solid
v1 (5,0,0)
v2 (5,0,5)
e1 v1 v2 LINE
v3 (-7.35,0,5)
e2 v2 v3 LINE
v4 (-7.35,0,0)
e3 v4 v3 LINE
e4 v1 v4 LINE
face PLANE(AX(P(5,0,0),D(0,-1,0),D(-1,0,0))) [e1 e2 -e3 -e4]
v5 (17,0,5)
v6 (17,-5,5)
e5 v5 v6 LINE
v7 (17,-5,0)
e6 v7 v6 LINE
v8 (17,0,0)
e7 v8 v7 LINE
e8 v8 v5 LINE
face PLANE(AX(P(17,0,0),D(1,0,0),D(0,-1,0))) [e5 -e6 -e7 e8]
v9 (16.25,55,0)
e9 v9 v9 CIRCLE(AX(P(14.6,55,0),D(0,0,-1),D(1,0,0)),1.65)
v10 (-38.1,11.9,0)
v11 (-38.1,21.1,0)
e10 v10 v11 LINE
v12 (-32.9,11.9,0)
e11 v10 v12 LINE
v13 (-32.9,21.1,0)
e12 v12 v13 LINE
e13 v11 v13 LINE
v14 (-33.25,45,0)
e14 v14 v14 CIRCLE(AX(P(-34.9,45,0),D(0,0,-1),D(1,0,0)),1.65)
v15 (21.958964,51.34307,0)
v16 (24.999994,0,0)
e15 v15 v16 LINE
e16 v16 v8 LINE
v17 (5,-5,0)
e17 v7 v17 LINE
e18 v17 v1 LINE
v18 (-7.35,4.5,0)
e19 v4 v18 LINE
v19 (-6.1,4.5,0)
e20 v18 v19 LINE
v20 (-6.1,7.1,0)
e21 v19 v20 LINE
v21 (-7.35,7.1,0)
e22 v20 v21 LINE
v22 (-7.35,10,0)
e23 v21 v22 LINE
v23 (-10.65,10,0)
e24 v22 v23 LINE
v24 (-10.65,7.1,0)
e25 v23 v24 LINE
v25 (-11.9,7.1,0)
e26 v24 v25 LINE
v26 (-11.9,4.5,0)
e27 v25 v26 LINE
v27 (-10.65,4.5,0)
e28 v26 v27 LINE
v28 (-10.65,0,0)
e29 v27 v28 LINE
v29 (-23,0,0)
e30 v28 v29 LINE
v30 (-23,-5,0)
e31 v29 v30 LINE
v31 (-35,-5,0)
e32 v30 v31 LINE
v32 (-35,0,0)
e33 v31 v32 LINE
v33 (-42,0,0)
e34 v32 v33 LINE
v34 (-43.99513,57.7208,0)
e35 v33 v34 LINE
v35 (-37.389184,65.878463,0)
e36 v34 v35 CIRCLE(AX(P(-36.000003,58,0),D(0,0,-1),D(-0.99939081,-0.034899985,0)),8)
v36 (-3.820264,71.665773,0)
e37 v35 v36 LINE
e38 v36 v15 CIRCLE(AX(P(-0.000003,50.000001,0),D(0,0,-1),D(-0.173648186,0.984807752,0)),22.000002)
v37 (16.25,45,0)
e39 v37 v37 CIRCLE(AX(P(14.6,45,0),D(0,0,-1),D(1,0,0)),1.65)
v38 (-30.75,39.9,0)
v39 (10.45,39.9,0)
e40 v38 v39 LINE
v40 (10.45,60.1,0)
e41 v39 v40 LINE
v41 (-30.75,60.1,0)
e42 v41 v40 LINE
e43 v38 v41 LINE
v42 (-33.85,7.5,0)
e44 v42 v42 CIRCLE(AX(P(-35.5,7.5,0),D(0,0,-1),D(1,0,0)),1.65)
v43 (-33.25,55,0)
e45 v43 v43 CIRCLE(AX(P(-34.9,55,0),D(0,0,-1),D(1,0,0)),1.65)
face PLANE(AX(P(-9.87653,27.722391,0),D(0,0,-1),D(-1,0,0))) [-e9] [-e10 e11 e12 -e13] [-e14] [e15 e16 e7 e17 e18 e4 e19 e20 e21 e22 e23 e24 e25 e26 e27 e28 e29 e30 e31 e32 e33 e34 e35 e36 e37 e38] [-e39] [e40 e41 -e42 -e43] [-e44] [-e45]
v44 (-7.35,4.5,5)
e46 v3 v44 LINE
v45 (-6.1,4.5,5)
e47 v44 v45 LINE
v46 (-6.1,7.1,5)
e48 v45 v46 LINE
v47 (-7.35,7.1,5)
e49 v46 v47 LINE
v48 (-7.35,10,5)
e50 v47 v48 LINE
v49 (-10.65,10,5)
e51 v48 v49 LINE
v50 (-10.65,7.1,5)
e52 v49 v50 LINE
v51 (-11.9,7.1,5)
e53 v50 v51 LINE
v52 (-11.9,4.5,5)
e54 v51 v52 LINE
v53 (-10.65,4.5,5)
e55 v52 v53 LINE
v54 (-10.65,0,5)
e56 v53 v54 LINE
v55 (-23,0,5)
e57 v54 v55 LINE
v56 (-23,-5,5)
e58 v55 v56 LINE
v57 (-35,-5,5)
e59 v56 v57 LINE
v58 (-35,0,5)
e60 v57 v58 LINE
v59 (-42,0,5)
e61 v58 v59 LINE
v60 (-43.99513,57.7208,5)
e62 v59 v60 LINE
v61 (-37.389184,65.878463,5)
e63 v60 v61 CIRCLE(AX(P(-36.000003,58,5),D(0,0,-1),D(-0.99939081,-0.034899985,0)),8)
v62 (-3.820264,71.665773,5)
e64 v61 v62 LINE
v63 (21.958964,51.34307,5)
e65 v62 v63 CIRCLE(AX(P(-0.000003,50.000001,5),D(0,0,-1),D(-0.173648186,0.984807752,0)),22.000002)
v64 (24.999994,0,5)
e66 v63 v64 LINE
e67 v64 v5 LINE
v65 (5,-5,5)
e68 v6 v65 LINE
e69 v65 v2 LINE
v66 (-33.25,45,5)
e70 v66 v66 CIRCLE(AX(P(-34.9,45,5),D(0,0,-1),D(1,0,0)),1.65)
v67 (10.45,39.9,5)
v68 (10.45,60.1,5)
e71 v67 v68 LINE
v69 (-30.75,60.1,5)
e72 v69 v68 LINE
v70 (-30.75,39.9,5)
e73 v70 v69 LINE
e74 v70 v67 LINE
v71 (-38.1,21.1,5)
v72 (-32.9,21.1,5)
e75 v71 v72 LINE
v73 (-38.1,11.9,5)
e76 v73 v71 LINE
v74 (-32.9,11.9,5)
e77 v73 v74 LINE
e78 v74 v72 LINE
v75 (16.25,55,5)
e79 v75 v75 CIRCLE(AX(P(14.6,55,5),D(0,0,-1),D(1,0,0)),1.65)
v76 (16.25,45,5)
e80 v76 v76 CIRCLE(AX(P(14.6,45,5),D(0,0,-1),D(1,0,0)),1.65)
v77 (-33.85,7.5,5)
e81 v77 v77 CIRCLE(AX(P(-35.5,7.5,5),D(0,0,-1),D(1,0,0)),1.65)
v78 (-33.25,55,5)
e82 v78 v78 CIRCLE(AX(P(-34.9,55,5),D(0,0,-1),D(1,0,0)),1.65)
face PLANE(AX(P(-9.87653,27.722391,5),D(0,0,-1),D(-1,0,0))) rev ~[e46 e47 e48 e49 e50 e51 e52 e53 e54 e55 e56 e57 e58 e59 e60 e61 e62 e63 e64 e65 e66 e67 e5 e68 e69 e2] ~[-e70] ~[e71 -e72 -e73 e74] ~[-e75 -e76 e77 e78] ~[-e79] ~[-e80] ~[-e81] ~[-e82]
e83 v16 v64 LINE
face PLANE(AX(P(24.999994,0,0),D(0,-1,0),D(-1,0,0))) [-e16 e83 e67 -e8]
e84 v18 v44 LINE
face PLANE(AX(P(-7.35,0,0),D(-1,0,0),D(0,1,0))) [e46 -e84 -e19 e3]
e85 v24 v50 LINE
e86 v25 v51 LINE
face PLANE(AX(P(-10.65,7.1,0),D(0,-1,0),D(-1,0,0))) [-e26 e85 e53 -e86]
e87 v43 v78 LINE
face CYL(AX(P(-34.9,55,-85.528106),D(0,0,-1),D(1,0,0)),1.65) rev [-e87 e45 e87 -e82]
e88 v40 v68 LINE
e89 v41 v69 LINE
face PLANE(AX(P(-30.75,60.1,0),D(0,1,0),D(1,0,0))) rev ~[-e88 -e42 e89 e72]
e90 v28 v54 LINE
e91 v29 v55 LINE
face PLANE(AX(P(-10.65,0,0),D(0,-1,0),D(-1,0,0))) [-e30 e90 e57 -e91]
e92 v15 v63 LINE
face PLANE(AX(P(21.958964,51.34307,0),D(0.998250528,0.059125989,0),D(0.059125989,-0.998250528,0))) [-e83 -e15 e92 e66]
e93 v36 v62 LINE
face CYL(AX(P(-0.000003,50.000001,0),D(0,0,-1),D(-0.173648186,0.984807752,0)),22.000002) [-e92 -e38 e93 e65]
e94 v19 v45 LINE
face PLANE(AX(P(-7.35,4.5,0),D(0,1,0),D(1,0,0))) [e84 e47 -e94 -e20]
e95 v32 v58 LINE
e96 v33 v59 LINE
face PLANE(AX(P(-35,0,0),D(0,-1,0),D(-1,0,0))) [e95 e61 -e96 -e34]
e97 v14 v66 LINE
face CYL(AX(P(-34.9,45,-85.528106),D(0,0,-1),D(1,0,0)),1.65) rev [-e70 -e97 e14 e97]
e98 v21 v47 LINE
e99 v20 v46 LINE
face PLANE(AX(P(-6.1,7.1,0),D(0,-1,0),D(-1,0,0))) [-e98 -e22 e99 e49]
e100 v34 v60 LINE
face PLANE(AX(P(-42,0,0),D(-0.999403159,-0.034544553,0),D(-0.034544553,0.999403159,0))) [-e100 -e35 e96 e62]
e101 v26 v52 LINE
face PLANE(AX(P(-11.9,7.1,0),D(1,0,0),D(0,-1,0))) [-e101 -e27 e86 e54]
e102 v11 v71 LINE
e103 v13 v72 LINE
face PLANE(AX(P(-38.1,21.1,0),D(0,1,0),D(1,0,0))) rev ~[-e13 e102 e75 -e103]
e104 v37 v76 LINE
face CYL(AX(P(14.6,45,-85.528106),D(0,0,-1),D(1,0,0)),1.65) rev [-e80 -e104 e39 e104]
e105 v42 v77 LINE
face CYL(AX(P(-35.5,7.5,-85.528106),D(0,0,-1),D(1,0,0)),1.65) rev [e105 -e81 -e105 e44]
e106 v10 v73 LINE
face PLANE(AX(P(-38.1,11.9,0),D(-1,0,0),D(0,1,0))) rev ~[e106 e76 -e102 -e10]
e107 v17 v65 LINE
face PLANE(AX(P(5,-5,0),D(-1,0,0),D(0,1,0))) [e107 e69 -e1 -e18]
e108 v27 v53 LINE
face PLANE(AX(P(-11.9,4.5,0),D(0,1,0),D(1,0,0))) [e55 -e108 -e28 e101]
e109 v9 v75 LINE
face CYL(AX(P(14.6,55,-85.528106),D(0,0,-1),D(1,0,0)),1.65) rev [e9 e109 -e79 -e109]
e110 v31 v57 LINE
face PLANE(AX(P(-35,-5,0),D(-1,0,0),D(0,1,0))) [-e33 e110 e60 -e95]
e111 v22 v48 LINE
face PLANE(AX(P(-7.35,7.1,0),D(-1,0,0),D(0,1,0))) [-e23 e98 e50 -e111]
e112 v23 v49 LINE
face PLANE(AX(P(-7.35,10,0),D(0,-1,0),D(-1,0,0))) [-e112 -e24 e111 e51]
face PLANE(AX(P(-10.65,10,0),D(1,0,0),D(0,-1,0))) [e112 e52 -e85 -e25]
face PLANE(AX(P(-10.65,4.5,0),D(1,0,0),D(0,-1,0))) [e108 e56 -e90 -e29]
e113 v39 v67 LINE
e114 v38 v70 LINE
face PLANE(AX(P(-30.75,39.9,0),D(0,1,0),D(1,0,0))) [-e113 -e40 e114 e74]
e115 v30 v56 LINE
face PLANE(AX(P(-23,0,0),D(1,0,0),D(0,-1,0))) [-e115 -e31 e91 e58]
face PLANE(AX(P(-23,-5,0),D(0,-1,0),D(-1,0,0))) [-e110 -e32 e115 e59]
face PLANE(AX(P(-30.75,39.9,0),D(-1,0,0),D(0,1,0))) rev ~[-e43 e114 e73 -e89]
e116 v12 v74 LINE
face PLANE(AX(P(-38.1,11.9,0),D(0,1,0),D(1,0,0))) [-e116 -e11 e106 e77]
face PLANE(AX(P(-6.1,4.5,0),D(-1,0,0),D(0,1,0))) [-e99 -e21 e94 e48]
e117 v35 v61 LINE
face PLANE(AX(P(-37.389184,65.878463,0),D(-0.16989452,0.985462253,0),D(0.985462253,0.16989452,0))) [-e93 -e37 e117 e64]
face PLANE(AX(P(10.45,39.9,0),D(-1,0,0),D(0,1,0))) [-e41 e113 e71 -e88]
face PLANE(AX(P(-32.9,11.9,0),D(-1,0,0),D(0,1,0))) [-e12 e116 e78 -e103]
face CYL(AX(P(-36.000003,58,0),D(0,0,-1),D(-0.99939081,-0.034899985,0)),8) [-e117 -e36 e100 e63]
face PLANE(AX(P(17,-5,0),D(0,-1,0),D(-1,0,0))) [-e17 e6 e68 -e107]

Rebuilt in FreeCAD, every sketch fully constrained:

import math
import FreeCAD as App
import Part
import Sketcher

V = App.Vector

doc = App.newDocument("Part")
params = doc.addObject("Spreadsheet::Sheet", "Params")
for row, (alias, value) in enumerate([
    ("sketch1_radius", "8 mm"),
    ("sketch1_width", "7 mm"),
    ("sketch1_width2", "12 mm"),
    ("sketch1_height", "5 mm"),
    ("sketch1_width3", "3.3 mm"),
    ("pad1_length", "5 mm"),
    ("sketch2_diameter", "3.3 mm"),
], start=1):
    params.set(f"A{row}", alias)
    params.set(f"B{row}", "=" + value)
    params.setAlias(f"B{row}", alias)

body = doc.addObject("PartDesign::Body", "Body")

# Sketch on XY plane
sketch1 = body.newObject("Sketcher::SketchObject", "Sketch")
sketch1.AttachmentSupport = (doc.getObject("XY_Plane"), [""])
sketch1.MapMode = "FlatFace"
sketch1.addGeometry([
    Part.LineSegment(V(25, 0, 0), V(22, 51.3, 0)),  # 0
    Part.ArcOfCircle(Part.Circle(V(0, 50, 0), V(0, 0, 1), 22), math.radians(4), math.radians(100)),  # 1
    Part.LineSegment(V(-3.8, 71.7, 0), V(-37.4, 65.9, 0)),  # 2
    Part.ArcOfCircle(Part.Circle(V(-36, 58, 0), V(0, 0, 1), 8), math.radians(100), math.radians(182)),  # 3
    Part.LineSegment(V(-44, 57.7, 0), V(-42, 0, 0)),  # 4
    Part.LineSegment(V(-42, 0, 0), V(-35, 0, 0)),  # 5
    Part.LineSegment(V(-35, 0, 0), V(-35, -5, 0)),  # 6
    Part.LineSegment(V(-35, -5, 0), V(-23, -5, 0)),  # 7
    Part.LineSegment(V(-23, -5, 0), V(-23, 0, 0)),  # 8
    Part.LineSegment(V(-23, 0, 0), V(-10.7, 0, 0)),  # 9
    Part.LineSegment(V(-10.7, 0, 0), V(-10.7, 4.5, 0)),  # 10
    Part.LineSegment(V(-10.7, 4.5, 0), V(-11.9, 4.5, 0)),  # 11
    Part.LineSegment(V(-11.9, 4.5, 0), V(-11.9, 7.1, 0)),  # 12
    Part.LineSegment(V(-11.9, 7.1, 0), V(-10.7, 7.1, 0)),  # 13
    Part.LineSegment(V(-10.7, 7.1, 0), V(-10.7, 10, 0)),  # 14
    Part.LineSegment(V(-10.7, 10, 0), V(-7.3, 10, 0)),  # 15
    Part.LineSegment(V(-7.3, 10, 0), V(-7.3, 7.1, 0)),  # 16
    Part.LineSegment(V(-7.3, 7.1, 0), V(-6.1, 7.1, 0)),  # 17
    Part.LineSegment(V(-6.1, 7.1, 0), V(-6.1, 4.5, 0)),  # 18
    Part.LineSegment(V(-6.1, 4.5, 0), V(-7.3, 4.5, 0)),  # 19
    Part.LineSegment(V(-7.3, 4.5, 0), V(-7.3, 0, 0)),  # 20
    Part.LineSegment(V(-7.3, 0, 0), V(5, 0, 0)),  # 21
    Part.LineSegment(V(5, 0, 0), V(5, -5, 0)),  # 22
    Part.LineSegment(V(5, -5, 0), V(17, -5, 0)),  # 23
    Part.LineSegment(V(17, -5, 0), V(17, 0, 0)),  # 24
    Part.LineSegment(V(17, 0, 0), V(25, 0, 0)),  # 25
    Part.LineSegment(V(-38.1, 11.9, 0), V(-38.1, 21.1, 0)),  # 26
    Part.LineSegment(V(-38.1, 21.1, 0), V(-32.9, 21.1, 0)),  # 27
    Part.LineSegment(V(-32.9, 21.1, 0), V(-32.9, 11.9, 0)),  # 28
    Part.LineSegment(V(-32.9, 11.9, 0), V(-38.1, 11.9, 0)),  # 29
    Part.LineSegment(V(-30.8, 39.9, 0), V(-30.8, 60.1, 0)),  # 30
    Part.LineSegment(V(-30.8, 60.1, 0), V(10.4, 60.1, 0)),  # 31
    Part.LineSegment(V(10.4, 60.1, 0), V(10.4, 39.9, 0)),  # 32
    Part.LineSegment(V(10.4, 39.9, 0), V(-30.8, 39.9, 0)),  # 33
], False)
sketch1.addConstraint([
    Sketcher.Constraint("Coincident", 0, 2, 1, 1),
    Sketcher.Constraint("Coincident", 1, 2, 2, 1),
    Sketcher.Constraint("Coincident", 2, 2, 3, 1),
    Sketcher.Constraint("Coincident", 3, 2, 4, 1),
    Sketcher.Constraint("Coincident", 4, 2, 5, 1),
    Sketcher.Constraint("Coincident", 5, 2, 6, 1),
    Sketcher.Constraint("Coincident", 6, 2, 7, 1),
    Sketcher.Constraint("Coincident", 7, 2, 8, 1),
    Sketcher.Constraint("Coincident", 8, 2, 9, 1),
    Sketcher.Constraint("Coincident", 9, 2, 10, 1),
    Sketcher.Constraint("Coincident", 10, 2, 11, 1),
    Sketcher.Constraint("Coincident", 11, 2, 12, 1),
    Sketcher.Constraint("Coincident", 12, 2, 13, 1),
    Sketcher.Constraint("Coincident", 13, 2, 14, 1),
    Sketcher.Constraint("Coincident", 14, 2, 15, 1),
    Sketcher.Constraint("Coincident", 15, 2, 16, 1),
    Sketcher.Constraint("Coincident", 16, 2, 17, 1),
    Sketcher.Constraint("Coincident", 17, 2, 18, 1),
    Sketcher.Constraint("Coincident", 18, 2, 19, 1),
    Sketcher.Constraint("Coincident", 19, 2, 20, 1),
    Sketcher.Constraint("Coincident", 20, 2, 21, 1),
    Sketcher.Constraint("Coincident", 21, 2, 22, 1),
    Sketcher.Constraint("Coincident", 22, 2, 23, 1),
    Sketcher.Constraint("Coincident", 23, 2, 24, 1),
    Sketcher.Constraint("Coincident", 24, 2, 25, 1),
    Sketcher.Constraint("Coincident", 25, 2, 0, 1),
    Sketcher.Constraint("Coincident", 26, 2, 27, 1),
    Sketcher.Constraint("Coincident", 27, 2, 28, 1),
    Sketcher.Constraint("Coincident", 28, 2, 29, 1),
    Sketcher.Constraint("Coincident", 29, 2, 26, 1),
    Sketcher.Constraint("Coincident", 30, 2, 31, 1),
    Sketcher.Constraint("Coincident", 31, 2, 32, 1),
    Sketcher.Constraint("Coincident", 32, 2, 33, 1),
    Sketcher.Constraint("Coincident", 33, 2, 30, 1),
    Sketcher.Constraint("Horizontal", 5),
    Sketcher.Constraint("Vertical", 6),
    Sketcher.Constraint("Horizontal", 7),
    Sketcher.Constraint("Vertical", 8),
    Sketcher.Constraint("Horizontal", 9),
    Sketcher.Constraint("Vertical", 10),
    Sketcher.Constraint("Horizontal", 11),
    Sketcher.Constraint("Vertical", 12),
    Sketcher.Constraint("Horizontal", 13),
    Sketcher.Constraint("Vertical", 14),
    Sketcher.Constraint("Horizontal", 15),
    Sketcher.Constraint("Vertical", 16),
    Sketcher.Constraint("Horizontal", 17),
    Sketcher.Constraint("Vertical", 18),
    Sketcher.Constraint("Horizontal", 19),
    Sketcher.Constraint("Vertical", 20),
    Sketcher.Constraint("Horizontal", 21),
    Sketcher.Constraint("Vertical", 22),
    Sketcher.Constraint("Horizontal", 23),
    Sketcher.Constraint("Vertical", 24),
    Sketcher.Constraint("Horizontal", 25),
    Sketcher.Constraint("Vertical", 26),
    Sketcher.Constraint("Horizontal", 27),
    Sketcher.Constraint("Vertical", 28),
    Sketcher.Constraint("Horizontal", 29),
    Sketcher.Constraint("Vertical", 30),
    Sketcher.Constraint("Horizontal", 31),
    Sketcher.Constraint("Vertical", 32),
    Sketcher.Constraint("Horizontal", 33),
    Sketcher.Constraint("PointOnObject", 4, 2, -1),
    Sketcher.Constraint("PointOnObject", 8, 2, -1),
    Sketcher.Constraint("PointOnObject", 20, 2, -1),
    Sketcher.Constraint("PointOnObject", 24, 2, -1),
    Sketcher.Constraint("Horizontal", 13, 2, 16, 2),
    Sketcher.Constraint("Horizontal", 11, 2, 18, 2),
    Sketcher.Constraint("Horizontal", 7, 2, 22, 2),
    Sketcher.Constraint("Vertical", 10, 2, 13, 2),
    Sketcher.Constraint("Vertical", 16, 2, 19, 2),
    Sketcher.Constraint("Equal", 13, 17),
    Sketcher.Constraint("Equal", 9, 21),
    Sketcher.Constraint("Equal", 7, 23),
    Sketcher.Constraint("Radius", 3, 8.0),
    Sketcher.Constraint("DistanceX", 5, 1, 5, 2, 7.0),
    Sketcher.Constraint("DistanceX", 7, 1, 7, 2, 12.0),
    Sketcher.Constraint("DistanceY", 6, 2, 6, 1, 5.0),
    Sketcher.Constraint("DistanceX", 15, 1, 15, 2, 3.3),
    Sketcher.Constraint("DistanceX", 27, 1, 27, 2, 5.2),
    Sketcher.Constraint("DistanceX", 31, 1, 31, 2, 41.2),
    Sketcher.Constraint("DistanceY", 10, 1, 10, 2, 4.5),
    Sketcher.Constraint("DistanceY", 12, 1, 12, 2, 2.6),
    Sketcher.Constraint("DistanceY", 14, 1, 14, 2, 2.9),
    Sketcher.Constraint("DistanceY", 26, 1, 26, 2, 9.2),
    Sketcher.Constraint("DistanceY", 30, 1, 30, 2, 20.2),
    Sketcher.Constraint("DistanceY", -1, 1, 1, 3, 50.000001),
    Sketcher.Constraint("DistanceY", -1, 1, 3, 3, 58.0),
    Sketcher.Constraint("DistanceX", 4, 2, -1, 1, 42.0),
    Sketcher.Constraint("DistanceX", -1, 1, 21, 2, 5.0),
    Sketcher.Constraint("DistanceX", 3, 3, 1, 3, 36.0),
    Sketcher.Constraint("DistanceX", 11, 2, 11, 1, 1.25),
    Sketcher.Constraint("DistanceX", 26, 2, -1, 1, 38.1),
    Sketcher.Constraint("DistanceY", -1, 1, 26, 2, 21.1),
    Sketcher.Constraint("DistanceY", -1, 1, 30, 2, 60.1),
    Sketcher.Constraint("DistanceX", 15, 2, 32, 2, 17.8),
    Sketcher.Constraint("Radius", 1, 22.000002),
    Sketcher.Constraint("DistanceY", -1, 1, 3, 2, 57.7208),
    Sketcher.Constraint("Distance", 0, 51.433051),
    Sketcher.Constraint("Distance", 4, 57.755271),
    Sketcher.Constraint("DistanceX", 25, 1, 25, 2, 7.999994),
    Sketcher.Constraint("DistanceX", 1, 2, 1, 3, 3.82026),
    Sketcher.Constraint("DistanceX", 2, 2, 3, 3, 1.389181),
])
sketch1.setExpression("Constraints[75]", "Params.sketch1_radius")
sketch1.setExpression("Constraints[76]", "Params.sketch1_width")
sketch1.setExpression("Constraints[77]", "Params.sketch1_width2")
sketch1.setExpression("Constraints[78]", "Params.sketch1_height")
sketch1.setExpression("Constraints[79]", "Params.sketch1_width3")
pad1 = body.newObject("PartDesign::Pad", "Pad")
pad1.Profile = sketch1
pad1.setExpression("Length", "Params.pad1_length")

# Sketch on XY plane
sketch2 = body.newObject("Sketcher::SketchObject", "Sketch001")
sketch2.AttachmentSupport = (doc.getObject("XY_Plane"), [""])
sketch2.MapMode = "FlatFace"
sketch2.addGeometry([
    Part.Circle(V(-35.5, 7.5, 0), V(0, 0, 1), 1.6),  # 0
    Part.Circle(V(-34.9, 45, 0), V(0, 0, 1), 1.6),  # 1
    Part.Circle(V(-34.9, 55, 0), V(0, 0, 1), 1.6),  # 2
    Part.Circle(V(14.6, 45, 0), V(0, 0, 1), 1.6),  # 3
    Part.Circle(V(14.6, 55, 0), V(0, 0, 1), 1.6),  # 4
], False)
sketch2.addConstraint([
    Sketcher.Constraint("Equal", 0, 1),
    Sketcher.Constraint("Equal", 1, 2),
    Sketcher.Constraint("Equal", 2, 3),
    Sketcher.Constraint("Equal", 3, 4),
    Sketcher.Constraint("Horizontal", 1, 3, 3, 3),
    Sketcher.Constraint("Horizontal", 2, 3, 4, 3),
    Sketcher.Constraint("Vertical", 1, 3, 2, 3),
    Sketcher.Constraint("Vertical", 3, 3, 4, 3),
    Sketcher.Constraint("Diameter", 0, 3.3),
    Sketcher.Constraint("DistanceY", -1, 1, 1, 3, 45.0),
    Sketcher.Constraint("DistanceY", -1, 1, 2, 3, 55.0),
    Sketcher.Constraint("DistanceX", 0, 3, -1, 1, 35.5),
    Sketcher.Constraint("DistanceY", -1, 1, 0, 3, 7.5),
    Sketcher.Constraint("DistanceX", 1, 3, -1, 1, 34.9),
    Sketcher.Constraint("DistanceX", -1, 1, 3, 3, 14.6),
])
sketch2.setExpression("Constraints[8]", "Params.sketch2_diameter")
pocket1 = body.newObject("PartDesign::Pocket", "Pocket")
pocket1.Profile = sketch2
pocket1.Type = "ThroughAll"
pocket1.Midplane = True

doc.recompute()
